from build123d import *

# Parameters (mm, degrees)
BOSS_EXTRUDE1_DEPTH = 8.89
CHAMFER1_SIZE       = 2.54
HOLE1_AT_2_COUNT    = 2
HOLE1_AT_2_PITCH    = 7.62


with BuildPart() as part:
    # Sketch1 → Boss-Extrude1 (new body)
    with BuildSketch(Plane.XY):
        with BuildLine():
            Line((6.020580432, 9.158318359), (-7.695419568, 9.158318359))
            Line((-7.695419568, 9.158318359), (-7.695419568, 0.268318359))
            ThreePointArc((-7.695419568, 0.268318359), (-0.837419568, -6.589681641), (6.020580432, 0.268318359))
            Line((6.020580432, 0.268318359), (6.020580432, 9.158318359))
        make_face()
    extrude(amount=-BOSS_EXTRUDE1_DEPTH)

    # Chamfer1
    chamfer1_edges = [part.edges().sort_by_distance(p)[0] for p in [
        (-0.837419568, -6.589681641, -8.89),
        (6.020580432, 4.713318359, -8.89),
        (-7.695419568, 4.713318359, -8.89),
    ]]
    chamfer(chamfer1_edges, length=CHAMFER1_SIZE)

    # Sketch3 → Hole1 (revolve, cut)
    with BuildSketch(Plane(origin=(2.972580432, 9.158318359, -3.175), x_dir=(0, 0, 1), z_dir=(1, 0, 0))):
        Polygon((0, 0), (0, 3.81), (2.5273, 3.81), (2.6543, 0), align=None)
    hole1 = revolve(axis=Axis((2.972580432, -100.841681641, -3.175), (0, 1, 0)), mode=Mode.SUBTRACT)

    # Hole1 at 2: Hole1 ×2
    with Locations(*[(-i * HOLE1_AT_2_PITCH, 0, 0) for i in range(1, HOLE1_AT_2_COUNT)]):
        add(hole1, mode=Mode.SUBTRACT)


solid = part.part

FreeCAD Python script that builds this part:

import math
import FreeCAD as App
import Part
import Sketcher

V = App.Vector
Q = App.Units.Quantity


def edges_at(feature, points):
    """Names of the edges that pass closest to the given points."""
    edges = feature.Shape.Edges
    near = lambda p: min(range(len(edges)), key=lambda i: edges[i].distToShape(Part.Vertex(*p))[0])
    return sorted({f"Edge{near(p) + 1}" for p in points})

doc = App.newDocument("Part")
body = doc.addObject("PartDesign::Body", "Body")

sketch1 = body.newObject("Sketcher::SketchObject", "Sketch")
sketch1.AttachmentSupport = (doc.getObject("XY_Plane"), [""])
sketch1.MapMode = "FlatFace"
sketch1.addGeometry([
    Part.LineSegment(V(6, 9, 0), V(-8, 9, 0)),
    Part.LineSegment(V(-8, 9, 0), V(-8, 0, 0)),
    Part.ArcOfCircle(Part.Circle(V(-1, 0, 0), V(0, 0, 1), 7), math.radians(180), math.radians(360)),
    Part.LineSegment(V(6, 0, 0), V(6, 9, 0)),
], False)
sketch1.addConstraint([
    Sketcher.Constraint("Coincident", 0, 2, 1, 1),
    Sketcher.Constraint("Tangent", 1, 2, 2, 1),
    Sketcher.Constraint("Tangent", 2, 2, 3, 1),
    Sketcher.Constraint("Coincident", 3, 2, 0, 1),
    Sketcher.Constraint("Horizontal", 0),
    Sketcher.Constraint("Vertical", 1),
    Sketcher.Constraint("Vertical", 3),
    Sketcher.Constraint("Radius", 2, Q("0.27 in")),
    Sketcher.Constraint("DistanceY", 1, 2, 1, 1, Q("0.35 in")),
    Sketcher.Constraint("DistanceX", 2, 3, -1, 1, Q("0.83742 mm")),
    Sketcher.Constraint("DistanceY", -1, 1, 2, 3, Q("0.268318 mm")),
])
pad1 = body.newObject("PartDesign::Pad", "Pad")
pad1.Profile = sketch1
pad1.Length = Q("0.35 in")
pad1.Reversed = True
doc.recompute()

chamfer = body.newObject("PartDesign::Chamfer", "Chamfer")
chamfer.Base = (pad1, edges_at(pad1, [(-0.837, -6.59, -8.89), (6.021, 4.713, -8.89), (-7.695, 4.713, -8.89)]))
chamfer.Size = Q("0.1 in")

sketch2 = body.newObject("Sketcher::SketchObject", "Sketch001")
sketch2.AttachmentSupport = (doc.getObject("YZ_Plane"), [""])
sketch2.MapMode = "FlatFace"
sketch2.AttachmentOffset = App.Placement(V(0, 0, 2.97258), App.Rotation())
sketch2.addGeometry([
    Part.LineSegment(V(5.3, -3.2, 0), V(9.2, -3.2, 0)),
    Part.LineSegment(V(9.2, -3.2, 0), V(9.2, -0.5, 0)),
    Part.LineSegment(V(9.2, -0.5, 0), V(5.3, -0.6, 0)),
    Part.LineSegment(V(5.3, -0.6, 0), V(5.3, -3.2, 0)),
], False)
sketch2.addGeometry(Part.LineSegment(V(5.3, -3.2, 0), V(9.2, -3.2, 0)), True)
sketch2.addConstraint([
    Sketcher.Constraint("Coincident", 0, 2, 1, 1),
    Sketcher.Constraint("Coincident", 1, 2, 2, 1),
    Sketcher.Constraint("Coincident", 2, 2, 3, 1),
    Sketcher.Constraint("Coincident", 3, 2, 0, 1),
    Sketcher.Constraint("Horizontal", 0),
    Sketcher.Constraint("Vertical", 1),
    Sketcher.Constraint("Vertical", 3),
    Sketcher.Constraint("Horizontal", 4),
    Sketcher.Constraint("Coincident", 4, 1, 3, 2),
    Sketcher.Constraint("Vertical", 1, 2, 4, 2),
    Sketcher.Constraint("DistanceX", 0, 1, 0, 2, Q("0.15 in")),
    Sketcher.Constraint("DistanceY", 1, 1, 1, 2, Q("0.1045 in")),
    Sketcher.Constraint("DistanceY", 3, 2, 3, 1, Q("0.0995 in")),
    Sketcher.Constraint("DistanceY", 0, 2, -1, 1, Q("0.125 in")),
    Sketcher.Constraint("DistanceX", -1, 1, 0, 2, Q("9.158318 mm")),
])
groove = body.newObject("PartDesign::Groove", "Groove")
groove.Profile = sketch2
groove.ReferenceAxis = (sketch2, ["Axis0"])
groove.Angle = 360
doc.recompute()

linearpattern = body.newObject("PartDesign::LinearPattern", "LinearPattern")
linearpattern.Originals = [groove]
linearpattern.Direction = (doc.getObject("X_Axis"), [""])
linearpattern.Mode = "offset"
linearpattern.Offset = Q("0.3 in")
linearpattern.Occurrences = 2
linearpattern.Reversed = True
body.Tip = linearpattern

doc.recompute()
